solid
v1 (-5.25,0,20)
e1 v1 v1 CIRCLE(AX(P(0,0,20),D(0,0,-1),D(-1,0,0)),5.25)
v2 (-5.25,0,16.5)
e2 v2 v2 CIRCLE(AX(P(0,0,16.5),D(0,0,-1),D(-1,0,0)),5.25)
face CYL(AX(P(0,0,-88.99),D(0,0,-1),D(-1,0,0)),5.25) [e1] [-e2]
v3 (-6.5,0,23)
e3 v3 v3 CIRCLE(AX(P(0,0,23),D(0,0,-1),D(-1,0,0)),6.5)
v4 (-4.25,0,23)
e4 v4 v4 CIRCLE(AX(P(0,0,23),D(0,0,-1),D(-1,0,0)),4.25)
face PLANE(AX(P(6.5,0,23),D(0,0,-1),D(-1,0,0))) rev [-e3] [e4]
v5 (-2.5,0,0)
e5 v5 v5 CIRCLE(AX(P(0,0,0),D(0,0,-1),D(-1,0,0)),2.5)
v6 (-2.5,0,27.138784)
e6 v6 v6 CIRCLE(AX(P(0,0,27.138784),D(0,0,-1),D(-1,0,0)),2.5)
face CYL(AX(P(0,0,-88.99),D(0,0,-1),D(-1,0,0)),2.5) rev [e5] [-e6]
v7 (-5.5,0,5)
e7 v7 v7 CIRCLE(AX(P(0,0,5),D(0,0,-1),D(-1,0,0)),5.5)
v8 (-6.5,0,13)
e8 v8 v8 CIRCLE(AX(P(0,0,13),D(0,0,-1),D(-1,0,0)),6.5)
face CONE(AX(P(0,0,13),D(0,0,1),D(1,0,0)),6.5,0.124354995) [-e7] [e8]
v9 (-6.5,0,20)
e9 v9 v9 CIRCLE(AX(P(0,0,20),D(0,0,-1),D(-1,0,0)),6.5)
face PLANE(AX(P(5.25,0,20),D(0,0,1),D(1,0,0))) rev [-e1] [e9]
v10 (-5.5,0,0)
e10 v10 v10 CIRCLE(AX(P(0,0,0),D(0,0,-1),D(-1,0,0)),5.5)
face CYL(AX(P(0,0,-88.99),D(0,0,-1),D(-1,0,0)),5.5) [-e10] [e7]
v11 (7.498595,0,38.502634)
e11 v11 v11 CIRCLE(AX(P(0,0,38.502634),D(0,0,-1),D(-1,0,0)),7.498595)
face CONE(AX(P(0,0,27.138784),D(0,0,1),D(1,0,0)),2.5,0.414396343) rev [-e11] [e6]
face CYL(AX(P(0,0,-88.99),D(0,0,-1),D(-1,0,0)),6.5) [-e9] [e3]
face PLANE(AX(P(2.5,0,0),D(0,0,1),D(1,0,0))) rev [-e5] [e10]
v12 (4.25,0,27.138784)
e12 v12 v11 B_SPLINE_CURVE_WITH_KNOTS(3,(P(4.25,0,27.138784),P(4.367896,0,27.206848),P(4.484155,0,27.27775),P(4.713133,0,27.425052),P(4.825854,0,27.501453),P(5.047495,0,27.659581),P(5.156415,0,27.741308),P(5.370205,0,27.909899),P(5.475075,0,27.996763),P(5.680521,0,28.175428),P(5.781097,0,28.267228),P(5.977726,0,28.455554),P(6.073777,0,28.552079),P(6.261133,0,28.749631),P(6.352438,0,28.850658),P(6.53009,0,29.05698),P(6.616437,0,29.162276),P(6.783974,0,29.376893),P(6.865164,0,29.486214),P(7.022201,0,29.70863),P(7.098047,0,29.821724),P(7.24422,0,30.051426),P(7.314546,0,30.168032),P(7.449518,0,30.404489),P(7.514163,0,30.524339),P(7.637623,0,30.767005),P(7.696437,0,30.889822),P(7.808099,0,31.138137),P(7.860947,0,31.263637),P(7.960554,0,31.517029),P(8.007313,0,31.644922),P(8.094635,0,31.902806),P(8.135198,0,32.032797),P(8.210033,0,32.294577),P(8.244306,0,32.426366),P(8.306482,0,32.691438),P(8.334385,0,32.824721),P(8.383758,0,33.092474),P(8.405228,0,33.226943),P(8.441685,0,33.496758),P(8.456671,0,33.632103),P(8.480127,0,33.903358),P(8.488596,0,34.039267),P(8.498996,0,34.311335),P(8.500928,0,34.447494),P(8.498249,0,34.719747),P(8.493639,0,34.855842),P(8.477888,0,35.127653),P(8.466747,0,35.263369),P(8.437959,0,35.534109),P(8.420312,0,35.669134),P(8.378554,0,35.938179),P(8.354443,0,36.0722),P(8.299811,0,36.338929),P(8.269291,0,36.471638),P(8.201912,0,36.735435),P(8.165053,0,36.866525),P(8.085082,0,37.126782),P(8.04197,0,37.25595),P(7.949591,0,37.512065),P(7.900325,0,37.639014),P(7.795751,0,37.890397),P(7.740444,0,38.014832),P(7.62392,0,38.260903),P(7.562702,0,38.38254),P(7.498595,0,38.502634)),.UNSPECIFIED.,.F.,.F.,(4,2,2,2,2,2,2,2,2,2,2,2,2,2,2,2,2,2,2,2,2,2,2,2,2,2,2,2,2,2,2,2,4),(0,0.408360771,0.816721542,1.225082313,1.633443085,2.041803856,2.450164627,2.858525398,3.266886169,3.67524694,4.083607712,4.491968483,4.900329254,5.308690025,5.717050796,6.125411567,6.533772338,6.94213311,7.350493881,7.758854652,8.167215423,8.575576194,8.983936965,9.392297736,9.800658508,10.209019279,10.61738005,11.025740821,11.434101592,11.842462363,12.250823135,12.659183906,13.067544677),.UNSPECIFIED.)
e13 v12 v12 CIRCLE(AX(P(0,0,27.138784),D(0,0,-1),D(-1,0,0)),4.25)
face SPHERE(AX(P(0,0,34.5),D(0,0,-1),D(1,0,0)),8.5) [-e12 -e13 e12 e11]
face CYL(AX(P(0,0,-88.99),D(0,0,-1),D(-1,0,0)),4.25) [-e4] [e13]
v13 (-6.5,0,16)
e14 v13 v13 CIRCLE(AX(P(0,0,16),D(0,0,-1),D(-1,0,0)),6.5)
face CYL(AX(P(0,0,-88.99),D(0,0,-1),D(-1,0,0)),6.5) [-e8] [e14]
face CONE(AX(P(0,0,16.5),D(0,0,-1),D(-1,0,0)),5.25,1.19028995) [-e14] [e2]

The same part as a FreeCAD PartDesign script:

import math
import FreeCAD as App
import Part
import Sketcher
from FreeCAD import Vector

doc = App.newDocument("Part")
body = doc.addObject("PartDesign::Body", "Body")

sketch1 = body.newObject("Sketcher::SketchObject", "Sketch")
sketch1.AttachmentSupport = (doc.getObject("XZ_Plane"), [""])
sketch1.MapMode = "FlatFace"
sketch1.addGeometry([
    Part.LineSegment(Vector(5.5, 0, 0), Vector(2.5, 0, 0)),
    Part.LineSegment(Vector(2.5, 0, 0), Vector(2.5, 27.138784, 0)),
    Part.LineSegment(Vector(2.5, 27.138784, 0), Vector(7.498595, 38.502634, 0)),
    Part.ArcOfCircle(Part.Circle(Vector(0, 34.5, 0), Vector(0, 0, 1), 8.5), math.radians(-60), math.radians(28.09261)),
    Part.LineSegment(Vector(4.25, 27.138784, 0), Vector(4.25, 23, 0)),
    Part.LineSegment(Vector(4.25, 23, 0), Vector(6.5, 23, 0)),
    Part.LineSegment(Vector(6.5, 23, 0), Vector(6.5, 20, 0)),
    Part.LineSegment(Vector(6.5, 20, 0), Vector(5.25, 20, 0)),
    Part.LineSegment(Vector(5.25, 20, 0), Vector(5.25, 16.5, 0)),
    Part.LineSegment(Vector(5.25, 16.5, 0), Vector(6.5, 16, 0)),
    Part.LineSegment(Vector(6.5, 16, 0), Vector(6.5, 13, 0)),
    Part.LineSegment(Vector(6.5, 13, 0), Vector(5.5, 5, 0)),
    Part.LineSegment(Vector(5.5, 5, 0), Vector(5.5, 0, 0)),
], False)
sketch1.addConstraint([
    Sketcher.Constraint("Coincident", 0, 2, 1, 1),
    Sketcher.Constraint("Coincident", 1, 2, 2, 1),
    Sketcher.Constraint("Coincident", 2, 2, 3, 2),
    Sketcher.Constraint("Coincident", 3, 1, 4, 1),
    Sketcher.Constraint("Coincident", 4, 2, 5, 1),
    Sketcher.Constraint("Coincident", 5, 2, 6, 1),
    Sketcher.Constraint("Coincident", 6, 2, 7, 1),
    Sketcher.Constraint("Coincident", 7, 2, 8, 1),
    Sketcher.Constraint("Coincident", 8, 2, 9, 1),
    Sketcher.Constraint("Coincident", 9, 2, 10, 1),
    Sketcher.Constraint("Coincident", 10, 2, 11, 1),
    Sketcher.Constraint("Coincident", 11, 2, 12, 1),
    Sketcher.Constraint("Coincident", 12, 2, 0, 1),
    Sketcher.Constraint("Horizontal", 0),
    Sketcher.Constraint("Vertical", 1),
    Sketcher.Constraint("Vertical", 4),
    Sketcher.Constraint("Horizontal", 5),
    Sketcher.Constraint("Vertical", 6),
    Sketcher.Constraint("Horizontal", 7),
    Sketcher.Constraint("Vertical", 8),
    Sketcher.Constraint("Vertical", 10),
    Sketcher.Constraint("Vertical", 12),
    Sketcher.Constraint("PointOnObject", 3, 3, -2),
    Sketcher.Constraint("PointOnObject", 0, 2, -1),
    Sketcher.Constraint("Horizontal", 1, 2, 3, 1),
    Sketcher.Constraint("Vertical", 6, 2, 9, 2),
    Sketcher.Constraint("Equal", 0, 6),
    Sketcher.Constraint("Equal", 6, 10),
    Sketcher.Constraint("Radius", 3, 8.5),
    Sketcher.Constraint("DistanceX", 0, 2, 0, 1, 3.0),
    Sketcher.Constraint("DistanceY", 12, 2, 12, 1, 5.0),
    Sketcher.Constraint("DistanceY", 8, 2, 8, 1, 3.5),
    Sketcher.Constraint("DistanceY", -1, 1, 4, 2, 23.0),
    Sketcher.Constraint("DistanceY", -1, 1, 9, 2, 16.0),
    Sketcher.Constraint("DistanceX", 1, 2, 5, 2, 4.0),
    Sketcher.Constraint("DistanceX", 4, 2, 7, 2, 1.0),
    Sketcher.Constraint("DistanceX", 5, 1, 5, 2, 2.25),
    Sketcher.Constraint("DistanceY", -1, 1, 3, 3, 34.5),
    Sketcher.Constraint("DistanceX", -1, 1, 0, 2, 2.5),
    Sketcher.Constraint("Distance", 2, 12.41463),
])
revolution = body.newObject("PartDesign::Revolution", "Revolution")
revolution.Profile = sketch1
revolution.ReferenceAxis = (sketch1, ["V_Axis"])
revolution.Angle = 360

doc.recompute()
